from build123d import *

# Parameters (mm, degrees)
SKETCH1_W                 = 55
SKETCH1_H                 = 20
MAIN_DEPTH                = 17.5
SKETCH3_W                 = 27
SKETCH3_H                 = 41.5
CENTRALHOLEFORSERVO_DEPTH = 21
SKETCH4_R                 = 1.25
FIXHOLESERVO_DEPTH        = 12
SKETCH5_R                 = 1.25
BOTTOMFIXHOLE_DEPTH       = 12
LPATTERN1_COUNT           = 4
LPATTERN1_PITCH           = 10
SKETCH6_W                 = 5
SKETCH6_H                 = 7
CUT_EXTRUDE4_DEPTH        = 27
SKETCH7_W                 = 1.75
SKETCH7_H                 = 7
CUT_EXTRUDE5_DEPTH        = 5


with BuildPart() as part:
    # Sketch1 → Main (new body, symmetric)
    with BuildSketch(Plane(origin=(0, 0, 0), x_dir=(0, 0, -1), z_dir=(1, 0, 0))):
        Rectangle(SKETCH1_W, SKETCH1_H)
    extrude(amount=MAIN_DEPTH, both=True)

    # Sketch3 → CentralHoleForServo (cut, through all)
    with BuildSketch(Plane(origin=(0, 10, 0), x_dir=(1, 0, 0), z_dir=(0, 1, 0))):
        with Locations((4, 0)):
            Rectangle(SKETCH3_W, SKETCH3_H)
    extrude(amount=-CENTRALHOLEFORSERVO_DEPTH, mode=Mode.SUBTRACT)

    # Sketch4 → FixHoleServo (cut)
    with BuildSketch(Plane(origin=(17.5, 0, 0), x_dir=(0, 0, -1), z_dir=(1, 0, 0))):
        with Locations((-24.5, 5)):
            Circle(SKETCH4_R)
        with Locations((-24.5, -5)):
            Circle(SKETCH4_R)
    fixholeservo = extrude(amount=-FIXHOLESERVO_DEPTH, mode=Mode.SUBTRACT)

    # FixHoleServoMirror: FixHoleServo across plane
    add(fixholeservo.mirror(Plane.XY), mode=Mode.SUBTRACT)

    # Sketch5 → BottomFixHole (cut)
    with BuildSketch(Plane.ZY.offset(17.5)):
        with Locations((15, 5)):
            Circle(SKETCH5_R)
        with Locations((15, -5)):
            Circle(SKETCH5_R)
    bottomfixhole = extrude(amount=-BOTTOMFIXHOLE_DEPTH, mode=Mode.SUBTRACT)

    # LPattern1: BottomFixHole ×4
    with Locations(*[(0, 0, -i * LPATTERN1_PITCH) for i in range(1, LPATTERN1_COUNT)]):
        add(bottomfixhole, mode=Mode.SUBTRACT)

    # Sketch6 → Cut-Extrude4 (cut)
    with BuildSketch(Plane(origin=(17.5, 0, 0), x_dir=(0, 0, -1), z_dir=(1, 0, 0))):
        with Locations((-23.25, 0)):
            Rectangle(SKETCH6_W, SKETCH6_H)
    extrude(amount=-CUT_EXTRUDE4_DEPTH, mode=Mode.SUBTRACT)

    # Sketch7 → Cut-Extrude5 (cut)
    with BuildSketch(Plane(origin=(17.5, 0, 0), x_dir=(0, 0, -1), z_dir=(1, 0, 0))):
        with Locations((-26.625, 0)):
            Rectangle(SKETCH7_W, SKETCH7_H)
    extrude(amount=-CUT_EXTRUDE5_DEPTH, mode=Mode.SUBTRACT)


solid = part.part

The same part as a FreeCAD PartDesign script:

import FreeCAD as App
import Part
import Sketcher

V = App.Vector
Q = App.Units.Quantity

doc = App.newDocument("Part")
body = doc.addObject("PartDesign::Body", "Body")

sketch1 = body.newObject("Sketcher::SketchObject", "Sketch")
sketch1.AttachmentSupport = (doc.getObject("YZ_Plane"), [""])
sketch1.MapMode = "FlatFace"
sketch1.addGeometry(Part.LineSegment(V(10, 27.5, 0), V(-10, 27.5, 0)), False)
sketch1.addGeometry(Part.LineSegment(V(-10, 27.5, 0), V(-10, -27.5, 0)), False)
sketch1.addGeometry(Part.LineSegment(V(-10, -27.5, 0), V(10, -27.5, 0)), False)
sketch1.addGeometry(Part.LineSegment(V(10, -27.5, 0), V(10, 27.5, 0)), False)
sketch1.addConstraint(Sketcher.Constraint("Coincident", 0, 2, 1, 1))
sketch1.addConstraint(Sketcher.Constraint("Coincident", 1, 2, 2, 1))
sketch1.addConstraint(Sketcher.Constraint("Coincident", 2, 2, 3, 1))
sketch1.addConstraint(Sketcher.Constraint("Coincident", 3, 2, 0, 1))
sketch1.addConstraint(Sketcher.Constraint("Horizontal", 0))
sketch1.addConstraint(Sketcher.Constraint("Vertical", 1))
sketch1.addConstraint(Sketcher.Constraint("Horizontal", 2))
sketch1.addConstraint(Sketcher.Constraint("Vertical", 3))
sketch1.addConstraint(Sketcher.Constraint("Symmetric", 0, 2, 2, 2, -1, 1))
sketch1.addConstraint(Sketcher.Constraint("DistanceX", 0, 2, 0, 1, Q("20 mm")))
sketch1.addConstraint(Sketcher.Constraint("DistanceY", 1, 2, 1, 1, Q("55 mm")))
pad1 = body.newObject("PartDesign::Pad", "Pad")
pad1.Profile = sketch1
pad1.Length = 35
pad1.Midplane = True

sketch2 = body.newObject("Sketcher::SketchObject", "Sketch001")
sketch2.AttachmentSupport = (doc.getObject("XZ_Plane"), [""])
sketch2.MapMode = "FlatFace"
sketch2.AttachmentOffset = App.Placement(V(0, 0, -10), App.Rotation())
sketch2.addGeometry(Part.LineSegment(V(-9.5, -20.75, 0), V(-9.5, 20.75, 0)), False)
sketch2.addGeometry(Part.LineSegment(V(-9.5, 20.75, 0), V(17.5, 20.75, 0)), False)
sketch2.addGeometry(Part.LineSegment(V(17.5, 20.75, 0), V(17.5, -20.75, 0)), False)
sketch2.addGeometry(Part.LineSegment(V(17.5, -20.75, 0), V(-9.5, -20.75, 0)), False)
sketch2.addConstraint(Sketcher.Constraint("Coincident", 0, 2, 1, 1))
sketch2.addConstraint(Sketcher.Constraint("Coincident", 1, 2, 2, 1))
sketch2.addConstraint(Sketcher.Constraint("Coincident", 2, 2, 3, 1))
sketch2.addConstraint(Sketcher.Constraint("Coincident", 3, 2, 0, 1))
sketch2.addConstraint(Sketcher.Constraint("Vertical", 0))
sketch2.addConstraint(Sketcher.Constraint("Horizontal", 1))
sketch2.addConstraint(Sketcher.Constraint("Vertical", 2))
sketch2.addConstraint(Sketcher.Constraint("Horizontal", 3))
sketch2.addConstraint(Sketcher.Constraint("DistanceX", 1, 1, 1, 2, Q("27 mm")))
sketch2.addConstraint(Sketcher.Constraint("DistanceY", 0, 1, 0, 2, Q("41.5 mm")))
sketch2.addConstraint(Sketcher.Constraint("DistanceX", 0, 2, -1, 1, Q("9.5 mm")))
sketch2.addConstraint(Sketcher.Constraint("DistanceY", -1, 1, 0, 2, Q("20.75 mm")))
pocket1 = body.newObject("PartDesign::Pocket", "Pocket")
pocket1.Profile = sketch2
pocket1.Type = "ThroughAll"
pocket1.Reversed = True

sketch3 = body.newObject("Sketcher::SketchObject", "Sketch002")
sketch3.AttachmentSupport = (doc.getObject("YZ_Plane"), [""])
sketch3.MapMode = "FlatFace"
sketch3.AttachmentOffset = App.Placement(V(0, 0, 17.5), App.Rotation())
sketch3.addGeometry(Part.Circle(V(5, 24.5, 0), V(0, 0, 1), 1.25), False)
sketch3.addGeometry(Part.Circle(V(-5, 24.5, 0), V(0, 0, 1), 1.25), False)
sketch3.addConstraint(Sketcher.Constraint("Equal", 0, 1))
sketch3.addConstraint(Sketcher.Constraint("Symmetric", 0, 3, 1, 3, -2))
sketch3.addConstraint(Sketcher.Constraint("Diameter", 0, Q("2.5 mm")))
sketch3.addConstraint(Sketcher.Constraint("DistanceX", -1, 1, 0, 3, Q("5 mm")))
sketch3.addConstraint(Sketcher.Constraint("DistanceY", -1, 1, 0, 3, Q("24.5 mm")))
pocket2 = body.newObject("PartDesign::Pocket", "Pocket001")
pocket2.Profile = sketch3
pocket2.Length = 12
doc.recompute()

mirrored = body.newObject("PartDesign::Mirrored", "Mirrored")
mirrored.Originals = [pocket2]
mirrored.MirrorPlane = (doc.getObject("XY_Plane"), [""])
body.Tip = mirrored

sketch4 = body.newObject("Sketcher::SketchObject", "Sketch003")
sketch4.AttachmentSupport = (doc.getObject("YZ_Plane"), [""])
sketch4.MapMode = "FlatFace"
sketch4.AttachmentOffset = App.Placement(V(0, 0, -17.5), App.Rotation())
sketch4.addGeometry(Part.Circle(V(5, 15, 0), V(0, 0, 1), 1.25), False)
sketch4.addGeometry(Part.Circle(V(-5, 15, 0), V(0, 0, 1), 1.25), False)
sketch4.addConstraint(Sketcher.Constraint("Equal", 0, 1))
sketch4.addConstraint(Sketcher.Constraint("Symmetric", 0, 3, 1, 3, -2))
sketch4.addConstraint(Sketcher.Constraint("Diameter", 0, Q("2.5 mm")))
sketch4.addConstraint(Sketcher.Constraint("DistanceX", -1, 1, 0, 3, Q("5 mm")))
sketch4.addConstraint(Sketcher.Constraint("DistanceY", -1, 1, 0, 3, Q("15 mm")))
pocket3 = body.newObject("PartDesign::Pocket", "Pocket002")
pocket3.Profile = sketch4
pocket3.Length = 12
pocket3.Reversed = True
doc.recompute()

linearpattern = body.newObject("PartDesign::LinearPattern", "LinearPattern")
linearpattern.Originals = [pocket3]
linearpattern.Direction = (doc.getObject("Z_Axis"), [""])
linearpattern.Mode = "offset"
linearpattern.Offset = 10
linearpattern.Occurrences = 4
linearpattern.Reversed = True
body.Tip = linearpattern

sketch5 = body.newObject("Sketcher::SketchObject", "Sketch004")
sketch5.AttachmentSupport = (doc.getObject("YZ_Plane"), [""])
sketch5.MapMode = "FlatFace"
sketch5.AttachmentOffset = App.Placement(V(0, 0, 17.5), App.Rotation())
sketch5.addGeometry(Part.LineSegment(V(3.5, 25.75, 0), V(-3.5, 25.75, 0)), False)
sketch5.addGeometry(Part.LineSegment(V(-3.5, 25.75, 0), V(-3.5, 20.75, 0)), False)
sketch5.addGeometry(Part.LineSegment(V(-3.5, 20.75, 0), V(3.5, 20.75, 0)), False)
sketch5.addGeometry(Part.LineSegment(V(3.5, 20.75, 0), V(3.5, 25.75, 0)), False)
sketch5.addConstraint(Sketcher.Constraint("Coincident", 0, 2, 1, 1))
sketch5.addConstraint(Sketcher.Constraint("Coincident", 1, 2, 2, 1))
sketch5.addConstraint(Sketcher.Constraint("Coincident", 2, 2, 3, 1))
sketch5.addConstraint(Sketcher.Constraint("Coincident", 3, 2, 0, 1))
sketch5.addConstraint(Sketcher.Constraint("Horizontal", 0))
sketch5.addConstraint(Sketcher.Constraint("Vertical", 1))
sketch5.addConstraint(Sketcher.Constraint("Horizontal", 2))
sketch5.addConstraint(Sketcher.Constraint("Vertical", 3))
sketch5.addConstraint(Sketcher.Constraint("DistanceX", 0, 2, 0, 1, Q("7 mm")))
sketch5.addConstraint(Sketcher.Constraint("DistanceY", 1, 2, 1, 1, Q("5 mm")))
sketch5.addConstraint(Sketcher.Constraint("DistanceX", 0, 2, -1, 1, Q("3.5 mm")))
sketch5.addConstraint(Sketcher.Constraint("DistanceY", -1, 1, 0, 2, Q("25.75 mm")))
pocket4 = body.newObject("PartDesign::Pocket", "Pocket003")
pocket4.Profile = sketch5
pocket4.Length = 27

sketch6 = body.newObject("Sketcher::SketchObject", "Sketch005")
sketch6.AttachmentSupport = (doc.getObject("YZ_Plane"), [""])
sketch6.MapMode = "FlatFace"
sketch6.AttachmentOffset = App.Placement(V(0, 0, 17.5), App.Rotation())
sketch6.addGeometry(Part.LineSegment(V(3.5, 27.5, 0), V(-3.5, 27.5, 0)), False)
sketch6.addGeometry(Part.LineSegment(V(-3.5, 27.5, 0), V(-3.5, 25.75, 0)), False)
sketch6.addGeometry(Part.LineSegment(V(-3.5, 25.75, 0), V(3.5, 25.75, 0)), False)
sketch6.addGeometry(Part.LineSegment(V(3.5, 25.75, 0), V(3.5, 27.5, 0)), False)
sketch6.addConstraint(Sketcher.Constraint("Coincident", 0, 2, 1, 1))
sketch6.addConstraint(Sketcher.Constraint("Coincident", 1, 2, 2, 1))
sketch6.addConstraint(Sketcher.Constraint("Coincident", 2, 2, 3, 1))
sketch6.addConstraint(Sketcher.Constraint("Coincident", 3, 2, 0, 1))
sketch6.addConstraint(Sketcher.Constraint("Horizontal", 0))
sketch6.addConstraint(Sketcher.Constraint("Vertical", 1))
sketch6.addConstraint(Sketcher.Constraint("Horizontal", 2))
sketch6.addConstraint(Sketcher.Constraint("Vertical", 3))
sketch6.addConstraint(Sketcher.Constraint("DistanceX", 0, 2, 0, 1, Q("7 mm")))
sketch6.addConstraint(Sketcher.Constraint("DistanceY", 1, 2, 1, 1, Q("1.75 mm")))
sketch6.addConstraint(Sketcher.Constraint("DistanceX", 0, 2, -1, 1, Q("3.5 mm")))
sketch6.addConstraint(Sketcher.Constraint("DistanceY", -1, 1, 0, 2, Q("27.5 mm")))
pocket5 = body.newObject("PartDesign::Pocket", "Pocket004")
pocket5.Profile = sketch6
pocket5.Length = 5

doc.recompute()
